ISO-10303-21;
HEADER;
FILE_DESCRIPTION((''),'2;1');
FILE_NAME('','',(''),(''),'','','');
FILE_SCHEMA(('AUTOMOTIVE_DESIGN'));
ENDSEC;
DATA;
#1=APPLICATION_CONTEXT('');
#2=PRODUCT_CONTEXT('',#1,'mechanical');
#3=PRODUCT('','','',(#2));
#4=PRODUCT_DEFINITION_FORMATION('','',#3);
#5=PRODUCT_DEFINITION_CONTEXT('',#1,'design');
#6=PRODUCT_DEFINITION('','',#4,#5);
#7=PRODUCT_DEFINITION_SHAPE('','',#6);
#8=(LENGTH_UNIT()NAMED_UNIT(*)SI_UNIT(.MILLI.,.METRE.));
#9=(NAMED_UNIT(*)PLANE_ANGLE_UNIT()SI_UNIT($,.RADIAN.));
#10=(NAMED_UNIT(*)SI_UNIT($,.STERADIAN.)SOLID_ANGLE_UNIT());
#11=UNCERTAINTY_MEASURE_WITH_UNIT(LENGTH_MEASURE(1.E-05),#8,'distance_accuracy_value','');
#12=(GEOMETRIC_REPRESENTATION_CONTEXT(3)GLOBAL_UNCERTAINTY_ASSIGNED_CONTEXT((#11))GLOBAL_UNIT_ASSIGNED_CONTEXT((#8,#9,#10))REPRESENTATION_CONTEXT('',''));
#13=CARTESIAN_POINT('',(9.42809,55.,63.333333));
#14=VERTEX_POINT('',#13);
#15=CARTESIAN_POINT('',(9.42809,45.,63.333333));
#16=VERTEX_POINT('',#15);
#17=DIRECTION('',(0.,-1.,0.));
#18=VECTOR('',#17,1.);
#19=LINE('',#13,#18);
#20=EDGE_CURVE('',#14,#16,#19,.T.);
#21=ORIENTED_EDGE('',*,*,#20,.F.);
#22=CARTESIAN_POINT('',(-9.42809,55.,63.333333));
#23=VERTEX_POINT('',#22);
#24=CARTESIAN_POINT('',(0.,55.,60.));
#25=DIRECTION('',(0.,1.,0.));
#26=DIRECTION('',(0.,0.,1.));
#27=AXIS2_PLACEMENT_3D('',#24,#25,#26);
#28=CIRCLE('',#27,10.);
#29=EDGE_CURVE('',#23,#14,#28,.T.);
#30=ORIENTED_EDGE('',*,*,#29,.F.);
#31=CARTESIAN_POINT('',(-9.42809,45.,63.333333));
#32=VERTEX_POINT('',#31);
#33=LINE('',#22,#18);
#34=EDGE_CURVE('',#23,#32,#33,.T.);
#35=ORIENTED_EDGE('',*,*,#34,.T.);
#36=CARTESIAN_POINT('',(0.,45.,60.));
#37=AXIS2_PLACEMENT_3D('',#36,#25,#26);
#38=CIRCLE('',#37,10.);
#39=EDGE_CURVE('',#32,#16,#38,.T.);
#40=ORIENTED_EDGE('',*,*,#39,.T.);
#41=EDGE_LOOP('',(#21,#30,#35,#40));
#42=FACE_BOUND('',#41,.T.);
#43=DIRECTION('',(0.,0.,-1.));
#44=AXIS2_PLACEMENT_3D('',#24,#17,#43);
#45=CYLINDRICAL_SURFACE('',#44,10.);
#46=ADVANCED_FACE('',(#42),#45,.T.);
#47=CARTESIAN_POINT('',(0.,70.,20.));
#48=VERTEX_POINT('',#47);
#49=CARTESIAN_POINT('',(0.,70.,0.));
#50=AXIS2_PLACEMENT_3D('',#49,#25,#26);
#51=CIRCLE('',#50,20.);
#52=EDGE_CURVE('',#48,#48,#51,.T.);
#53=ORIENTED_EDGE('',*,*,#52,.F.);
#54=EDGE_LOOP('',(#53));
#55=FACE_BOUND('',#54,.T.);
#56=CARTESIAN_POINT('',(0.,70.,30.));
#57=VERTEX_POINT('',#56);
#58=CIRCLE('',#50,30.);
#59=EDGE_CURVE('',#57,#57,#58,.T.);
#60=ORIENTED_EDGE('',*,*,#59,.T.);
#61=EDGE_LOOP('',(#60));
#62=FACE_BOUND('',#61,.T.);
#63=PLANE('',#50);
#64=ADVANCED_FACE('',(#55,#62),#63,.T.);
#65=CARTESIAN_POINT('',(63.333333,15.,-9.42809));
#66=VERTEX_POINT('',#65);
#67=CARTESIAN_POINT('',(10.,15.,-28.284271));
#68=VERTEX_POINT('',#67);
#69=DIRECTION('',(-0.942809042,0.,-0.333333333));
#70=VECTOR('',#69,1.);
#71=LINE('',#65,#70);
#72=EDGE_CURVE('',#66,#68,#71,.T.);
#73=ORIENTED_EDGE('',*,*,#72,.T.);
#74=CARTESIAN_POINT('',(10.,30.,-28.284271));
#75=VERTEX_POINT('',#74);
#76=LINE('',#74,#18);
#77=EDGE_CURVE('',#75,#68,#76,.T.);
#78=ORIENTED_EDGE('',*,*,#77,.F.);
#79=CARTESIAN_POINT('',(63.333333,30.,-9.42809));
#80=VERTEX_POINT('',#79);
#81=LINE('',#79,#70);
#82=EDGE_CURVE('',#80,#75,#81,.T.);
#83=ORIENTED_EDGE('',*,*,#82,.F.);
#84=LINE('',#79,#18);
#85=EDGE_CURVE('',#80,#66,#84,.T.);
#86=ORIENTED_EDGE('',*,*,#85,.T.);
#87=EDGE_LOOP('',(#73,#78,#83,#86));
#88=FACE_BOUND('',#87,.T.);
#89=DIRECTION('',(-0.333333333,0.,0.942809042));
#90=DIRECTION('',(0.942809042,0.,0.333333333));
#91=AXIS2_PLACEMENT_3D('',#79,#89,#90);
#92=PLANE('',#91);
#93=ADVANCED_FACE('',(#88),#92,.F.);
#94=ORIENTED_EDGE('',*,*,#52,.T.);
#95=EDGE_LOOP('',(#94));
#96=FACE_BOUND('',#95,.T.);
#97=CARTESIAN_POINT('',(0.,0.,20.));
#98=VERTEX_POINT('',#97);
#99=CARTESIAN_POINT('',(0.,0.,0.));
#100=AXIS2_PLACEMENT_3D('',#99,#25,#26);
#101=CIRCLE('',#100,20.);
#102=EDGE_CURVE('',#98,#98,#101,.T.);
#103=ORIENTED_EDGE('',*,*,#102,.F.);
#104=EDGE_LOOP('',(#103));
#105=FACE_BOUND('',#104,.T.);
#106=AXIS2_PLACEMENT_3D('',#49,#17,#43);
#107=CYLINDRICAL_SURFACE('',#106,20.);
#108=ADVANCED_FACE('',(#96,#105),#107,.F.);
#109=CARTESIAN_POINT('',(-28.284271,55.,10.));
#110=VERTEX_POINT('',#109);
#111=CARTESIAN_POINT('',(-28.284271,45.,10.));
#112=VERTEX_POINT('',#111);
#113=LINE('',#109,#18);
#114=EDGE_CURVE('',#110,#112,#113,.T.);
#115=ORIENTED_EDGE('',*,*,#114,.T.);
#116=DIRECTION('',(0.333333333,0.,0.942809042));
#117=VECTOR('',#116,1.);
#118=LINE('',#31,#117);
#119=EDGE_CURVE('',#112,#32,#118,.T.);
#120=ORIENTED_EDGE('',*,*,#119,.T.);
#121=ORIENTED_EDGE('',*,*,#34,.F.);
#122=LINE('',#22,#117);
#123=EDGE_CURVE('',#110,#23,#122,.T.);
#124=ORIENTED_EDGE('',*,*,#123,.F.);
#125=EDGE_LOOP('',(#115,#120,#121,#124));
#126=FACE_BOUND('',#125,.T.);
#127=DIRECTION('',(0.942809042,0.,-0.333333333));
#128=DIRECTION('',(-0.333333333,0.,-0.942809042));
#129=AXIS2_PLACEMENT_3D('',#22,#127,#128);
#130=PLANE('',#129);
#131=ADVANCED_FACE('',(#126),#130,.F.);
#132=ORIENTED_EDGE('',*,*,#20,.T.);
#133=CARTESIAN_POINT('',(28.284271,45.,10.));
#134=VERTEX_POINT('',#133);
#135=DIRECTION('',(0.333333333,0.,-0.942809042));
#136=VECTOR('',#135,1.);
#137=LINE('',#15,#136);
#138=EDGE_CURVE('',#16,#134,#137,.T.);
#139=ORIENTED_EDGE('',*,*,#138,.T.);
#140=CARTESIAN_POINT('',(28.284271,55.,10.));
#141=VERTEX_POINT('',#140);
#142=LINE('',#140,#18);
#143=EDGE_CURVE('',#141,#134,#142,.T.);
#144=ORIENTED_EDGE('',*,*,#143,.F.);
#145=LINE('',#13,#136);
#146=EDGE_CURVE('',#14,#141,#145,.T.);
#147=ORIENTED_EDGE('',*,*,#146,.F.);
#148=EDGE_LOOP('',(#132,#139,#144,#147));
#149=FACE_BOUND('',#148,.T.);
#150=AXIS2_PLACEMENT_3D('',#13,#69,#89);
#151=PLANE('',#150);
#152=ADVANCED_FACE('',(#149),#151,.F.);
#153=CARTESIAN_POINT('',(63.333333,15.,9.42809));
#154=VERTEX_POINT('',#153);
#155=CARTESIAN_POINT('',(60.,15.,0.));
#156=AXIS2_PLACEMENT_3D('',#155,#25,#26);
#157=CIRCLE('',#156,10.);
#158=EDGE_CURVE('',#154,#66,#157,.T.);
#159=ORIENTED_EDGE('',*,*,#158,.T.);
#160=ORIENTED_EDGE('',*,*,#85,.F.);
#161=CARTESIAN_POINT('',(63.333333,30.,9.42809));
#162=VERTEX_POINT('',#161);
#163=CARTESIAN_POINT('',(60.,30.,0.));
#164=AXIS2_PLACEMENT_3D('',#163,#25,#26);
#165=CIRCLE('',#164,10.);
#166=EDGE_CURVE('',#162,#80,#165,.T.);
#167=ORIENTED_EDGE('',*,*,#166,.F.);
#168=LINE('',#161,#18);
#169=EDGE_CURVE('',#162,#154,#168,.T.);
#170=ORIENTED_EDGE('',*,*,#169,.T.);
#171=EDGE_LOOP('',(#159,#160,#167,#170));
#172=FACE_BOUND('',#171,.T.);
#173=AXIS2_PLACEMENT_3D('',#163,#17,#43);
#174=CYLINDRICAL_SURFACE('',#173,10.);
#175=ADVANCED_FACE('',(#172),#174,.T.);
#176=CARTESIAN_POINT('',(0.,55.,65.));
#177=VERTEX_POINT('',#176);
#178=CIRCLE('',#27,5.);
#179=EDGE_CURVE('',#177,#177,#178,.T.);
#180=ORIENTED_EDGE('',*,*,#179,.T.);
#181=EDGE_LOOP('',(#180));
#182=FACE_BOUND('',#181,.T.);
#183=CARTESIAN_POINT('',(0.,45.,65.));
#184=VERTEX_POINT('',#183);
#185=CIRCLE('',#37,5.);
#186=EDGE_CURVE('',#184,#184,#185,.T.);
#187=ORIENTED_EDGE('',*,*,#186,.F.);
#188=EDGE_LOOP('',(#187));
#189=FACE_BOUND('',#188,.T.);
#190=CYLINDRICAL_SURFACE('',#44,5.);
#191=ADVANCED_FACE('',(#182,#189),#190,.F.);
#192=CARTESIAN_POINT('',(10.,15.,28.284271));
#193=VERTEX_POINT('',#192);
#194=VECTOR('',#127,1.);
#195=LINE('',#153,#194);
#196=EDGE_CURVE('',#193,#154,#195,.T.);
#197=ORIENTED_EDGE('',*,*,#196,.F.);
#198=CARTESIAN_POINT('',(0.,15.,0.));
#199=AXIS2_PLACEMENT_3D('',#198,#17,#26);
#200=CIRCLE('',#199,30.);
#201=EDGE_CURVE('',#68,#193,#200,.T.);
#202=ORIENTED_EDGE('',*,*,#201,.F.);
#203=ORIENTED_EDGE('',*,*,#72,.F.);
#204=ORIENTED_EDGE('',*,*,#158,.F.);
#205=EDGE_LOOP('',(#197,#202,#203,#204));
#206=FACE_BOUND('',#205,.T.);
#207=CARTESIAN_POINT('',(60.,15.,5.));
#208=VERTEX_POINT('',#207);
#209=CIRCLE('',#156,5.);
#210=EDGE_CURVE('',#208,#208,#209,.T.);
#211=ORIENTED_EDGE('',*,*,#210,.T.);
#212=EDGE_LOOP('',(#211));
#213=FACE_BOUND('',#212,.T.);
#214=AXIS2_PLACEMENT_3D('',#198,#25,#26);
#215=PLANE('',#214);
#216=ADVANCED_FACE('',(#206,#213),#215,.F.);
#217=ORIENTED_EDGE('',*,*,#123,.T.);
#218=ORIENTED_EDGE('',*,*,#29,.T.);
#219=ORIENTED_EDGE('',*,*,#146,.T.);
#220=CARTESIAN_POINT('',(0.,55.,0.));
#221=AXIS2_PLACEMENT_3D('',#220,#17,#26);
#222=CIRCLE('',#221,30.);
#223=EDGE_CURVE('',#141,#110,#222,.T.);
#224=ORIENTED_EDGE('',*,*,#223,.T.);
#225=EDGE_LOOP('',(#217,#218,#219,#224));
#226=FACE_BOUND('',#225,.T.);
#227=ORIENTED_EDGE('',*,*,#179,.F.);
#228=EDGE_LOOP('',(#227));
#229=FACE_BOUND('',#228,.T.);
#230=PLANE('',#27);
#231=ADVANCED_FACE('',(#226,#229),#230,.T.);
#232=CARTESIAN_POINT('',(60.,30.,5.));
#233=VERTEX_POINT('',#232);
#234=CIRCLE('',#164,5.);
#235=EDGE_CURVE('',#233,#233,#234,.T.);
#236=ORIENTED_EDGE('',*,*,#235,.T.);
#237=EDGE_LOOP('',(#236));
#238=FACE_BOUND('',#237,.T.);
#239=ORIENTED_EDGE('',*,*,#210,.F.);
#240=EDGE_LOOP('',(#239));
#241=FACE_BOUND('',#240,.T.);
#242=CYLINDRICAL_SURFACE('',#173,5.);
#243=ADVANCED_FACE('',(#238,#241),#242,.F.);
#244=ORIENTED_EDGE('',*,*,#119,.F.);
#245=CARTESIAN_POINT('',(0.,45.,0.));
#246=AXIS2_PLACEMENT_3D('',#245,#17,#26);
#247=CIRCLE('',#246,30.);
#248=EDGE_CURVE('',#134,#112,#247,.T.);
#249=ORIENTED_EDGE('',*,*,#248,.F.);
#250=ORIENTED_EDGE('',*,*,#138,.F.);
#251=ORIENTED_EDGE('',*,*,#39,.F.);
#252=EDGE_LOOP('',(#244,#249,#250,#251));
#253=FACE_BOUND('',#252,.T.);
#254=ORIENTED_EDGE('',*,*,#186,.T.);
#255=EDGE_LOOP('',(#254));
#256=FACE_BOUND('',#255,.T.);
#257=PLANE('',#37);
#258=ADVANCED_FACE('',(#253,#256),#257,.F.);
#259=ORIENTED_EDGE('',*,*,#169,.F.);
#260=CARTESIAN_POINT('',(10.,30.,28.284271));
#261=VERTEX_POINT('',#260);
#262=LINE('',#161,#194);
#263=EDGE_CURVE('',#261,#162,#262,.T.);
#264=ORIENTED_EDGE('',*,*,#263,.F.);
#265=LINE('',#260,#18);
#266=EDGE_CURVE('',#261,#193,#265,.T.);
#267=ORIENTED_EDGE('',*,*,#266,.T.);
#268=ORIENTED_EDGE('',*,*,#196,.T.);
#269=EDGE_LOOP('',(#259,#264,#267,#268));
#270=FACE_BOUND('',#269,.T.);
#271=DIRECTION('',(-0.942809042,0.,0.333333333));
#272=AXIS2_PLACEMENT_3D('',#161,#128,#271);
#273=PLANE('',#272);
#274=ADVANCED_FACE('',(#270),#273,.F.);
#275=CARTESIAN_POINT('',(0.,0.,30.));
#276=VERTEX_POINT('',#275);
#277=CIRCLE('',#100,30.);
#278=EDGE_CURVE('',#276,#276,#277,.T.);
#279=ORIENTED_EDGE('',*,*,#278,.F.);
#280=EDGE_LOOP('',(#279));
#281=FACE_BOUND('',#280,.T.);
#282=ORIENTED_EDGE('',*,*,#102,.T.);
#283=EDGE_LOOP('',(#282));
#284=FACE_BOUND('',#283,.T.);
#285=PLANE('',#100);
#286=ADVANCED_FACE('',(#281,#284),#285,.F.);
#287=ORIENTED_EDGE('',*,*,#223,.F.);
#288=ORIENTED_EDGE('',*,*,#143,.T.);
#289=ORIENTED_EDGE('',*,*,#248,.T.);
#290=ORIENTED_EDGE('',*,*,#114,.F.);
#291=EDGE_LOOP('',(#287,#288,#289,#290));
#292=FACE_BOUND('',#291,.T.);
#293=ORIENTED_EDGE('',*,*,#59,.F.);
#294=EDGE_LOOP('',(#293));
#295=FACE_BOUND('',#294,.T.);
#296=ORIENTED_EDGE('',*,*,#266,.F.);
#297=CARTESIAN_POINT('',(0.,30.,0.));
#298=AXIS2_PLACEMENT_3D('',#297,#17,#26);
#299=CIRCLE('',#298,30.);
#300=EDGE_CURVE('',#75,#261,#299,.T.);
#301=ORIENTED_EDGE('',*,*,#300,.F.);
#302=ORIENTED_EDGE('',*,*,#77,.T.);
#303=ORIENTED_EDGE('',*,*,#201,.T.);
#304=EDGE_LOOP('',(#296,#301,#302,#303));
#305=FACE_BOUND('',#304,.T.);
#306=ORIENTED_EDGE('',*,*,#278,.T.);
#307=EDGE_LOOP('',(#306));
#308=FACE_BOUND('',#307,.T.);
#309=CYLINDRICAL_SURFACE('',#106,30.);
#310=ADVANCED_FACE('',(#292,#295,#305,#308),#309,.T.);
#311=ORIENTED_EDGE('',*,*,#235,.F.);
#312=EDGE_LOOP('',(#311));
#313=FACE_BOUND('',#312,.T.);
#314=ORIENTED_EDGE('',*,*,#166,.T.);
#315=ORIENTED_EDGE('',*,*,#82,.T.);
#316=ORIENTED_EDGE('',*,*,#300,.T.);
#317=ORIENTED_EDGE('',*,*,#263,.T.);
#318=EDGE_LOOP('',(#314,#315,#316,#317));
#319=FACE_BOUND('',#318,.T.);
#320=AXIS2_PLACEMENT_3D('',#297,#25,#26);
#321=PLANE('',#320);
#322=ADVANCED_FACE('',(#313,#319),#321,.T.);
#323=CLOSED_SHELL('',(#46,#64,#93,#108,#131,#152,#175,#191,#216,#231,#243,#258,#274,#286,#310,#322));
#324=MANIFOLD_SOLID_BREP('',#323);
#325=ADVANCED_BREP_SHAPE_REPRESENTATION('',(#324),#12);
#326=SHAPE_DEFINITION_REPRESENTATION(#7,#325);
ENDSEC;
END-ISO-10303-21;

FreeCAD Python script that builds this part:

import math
import FreeCAD as App
import Part
import Sketcher

doc = App.newDocument("Part")
body = doc.addObject("PartDesign::Body", "Body")

# Sketch on XZ plane
sketch1 = body.newObject("Sketcher::SketchObject", "Sketch")
sketch1.AttachmentSupport = (doc.getObject("XZ_Plane"), [""])
sketch1.MapMode = "FlatFace"
sketch1.addGeometry([
    Part.Circle(App.Vector(0, 0, 0), App.Vector(0, 0, 1), 30),
    Part.Circle(App.Vector(0, 0, 0), App.Vector(0, 0, 1), 20),
], False)
sketch1.addConstraint([
    Sketcher.Constraint("Coincident", 0, 3, -1, 1),
    Sketcher.Constraint("Coincident", 1, 3, -1, 1),
    Sketcher.Constraint("Diameter", 0, 60.0),
    Sketcher.Constraint("Diameter", 1, 40.0),
])
pad1 = body.newObject("PartDesign::Pad", "Pad")
pad1.Profile = sketch1
pad1.Length = 70
pad1.Reversed = True

# Sketch on XZ plane
sketch2 = body.newObject("Sketcher::SketchObject", "Sketch001")
sketch2.AttachmentSupport = (doc.getObject("XZ_Plane"), [""])
sketch2.MapMode = "FlatFace"
sketch2.AttachmentOffset = App.Placement(App.Vector(0, 0, -15), App.Rotation())
sketch2.addGeometry([
    Part.LineSegment(App.Vector(63, -9, 0), App.Vector(10, -28, 0)),  # 0
    Part.ArcOfCircle(Part.Circle(App.Vector(0, 0, 0), App.Vector(0, 0, 1), 30), math.radians(-71), math.radians(71)),  # 1
    Part.LineSegment(App.Vector(10, 28, 0), App.Vector(63, 9, 0)),  # 2
    Part.ArcOfCircle(Part.Circle(App.Vector(60, 0, 0), App.Vector(0, 0, 1), 10), math.radians(-71), math.radians(71)),  # 3
    Part.Circle(App.Vector(60, 0, 0), App.Vector(0, 0, 1), 5),  # 4
], False)
sketch2.addConstraint([
    Sketcher.Constraint("Tangent", 0, 2, 1, 1),
    Sketcher.Constraint("Tangent", 1, 2, 2, 1),
    Sketcher.Constraint("Tangent", 2, 2, 3, 2),
    Sketcher.Constraint("Tangent", 3, 1, 0, 1),
    Sketcher.Constraint("Coincident", 1, 3, -1, 1),
    Sketcher.Constraint("Coincident", 4, 3, 3, 3),
    Sketcher.Constraint("PointOnObject", 3, 3, -1),
    Sketcher.Constraint("Diameter", 4, 10.0),
    Sketcher.Constraint("Radius", 1, 30.0),
    Sketcher.Constraint("Radius", 3, 10.0),
    Sketcher.Constraint("DistanceX", -1, 1, 3, 3, 60.0),
])
pad2 = body.newObject("PartDesign::Pad", "Pad001")
pad2.Profile = sketch2
pad2.Length = 15
pad2.Reversed = True

# Sketch on XZ plane
sketch3 = body.newObject("Sketcher::SketchObject", "Sketch002")
sketch3.AttachmentSupport = (doc.getObject("XZ_Plane"), [""])
sketch3.MapMode = "FlatFace"
sketch3.AttachmentOffset = App.Placement(App.Vector(0, 0, -45), App.Rotation())
sketch3.addGeometry([
    Part.LineSegment(App.Vector(-28, 10, 0), App.Vector(-9, 63, 0)),  # 0
    Part.ArcOfCircle(Part.Circle(App.Vector(0, 60, 0), App.Vector(0, 0, 1), 10), math.radians(19), math.radians(161)),  # 1
    Part.LineSegment(App.Vector(9, 63, 0), App.Vector(28, 10, 0)),  # 2
    Part.ArcOfCircle(Part.Circle(App.Vector(0, 0, 0), App.Vector(0, 0, 1), 30), math.radians(19), math.radians(161)),  # 3
    Part.Circle(App.Vector(0, 60, 0), App.Vector(0, 0, 1), 5),  # 4
], False)
sketch3.addConstraint([
    Sketcher.Constraint("Tangent", 0, 2, 1, 2),
    Sketcher.Constraint("Tangent", 1, 1, 2, 1),
    Sketcher.Constraint("Tangent", 2, 2, 3, 1),
    Sketcher.Constraint("Tangent", 3, 2, 0, 1),
    Sketcher.Constraint("Coincident", 3, 3, -1, 1),
    Sketcher.Constraint("Coincident", 4, 3, 1, 3),
    Sketcher.Constraint("PointOnObject", 1, 3, -2),
    Sketcher.Constraint("Diameter", 4, 10.0),
    Sketcher.Constraint("Radius", 1, 10.0),
    Sketcher.Constraint("Radius", 3, 30.0),
    Sketcher.Constraint("DistanceY", -1, 1, 1, 3, 60.0),
])
pad3 = body.newObject("PartDesign::Pad", "Pad002")
pad3.Profile = sketch3
pad3.Length = 10
pad3.Reversed = True

doc.recompute()
